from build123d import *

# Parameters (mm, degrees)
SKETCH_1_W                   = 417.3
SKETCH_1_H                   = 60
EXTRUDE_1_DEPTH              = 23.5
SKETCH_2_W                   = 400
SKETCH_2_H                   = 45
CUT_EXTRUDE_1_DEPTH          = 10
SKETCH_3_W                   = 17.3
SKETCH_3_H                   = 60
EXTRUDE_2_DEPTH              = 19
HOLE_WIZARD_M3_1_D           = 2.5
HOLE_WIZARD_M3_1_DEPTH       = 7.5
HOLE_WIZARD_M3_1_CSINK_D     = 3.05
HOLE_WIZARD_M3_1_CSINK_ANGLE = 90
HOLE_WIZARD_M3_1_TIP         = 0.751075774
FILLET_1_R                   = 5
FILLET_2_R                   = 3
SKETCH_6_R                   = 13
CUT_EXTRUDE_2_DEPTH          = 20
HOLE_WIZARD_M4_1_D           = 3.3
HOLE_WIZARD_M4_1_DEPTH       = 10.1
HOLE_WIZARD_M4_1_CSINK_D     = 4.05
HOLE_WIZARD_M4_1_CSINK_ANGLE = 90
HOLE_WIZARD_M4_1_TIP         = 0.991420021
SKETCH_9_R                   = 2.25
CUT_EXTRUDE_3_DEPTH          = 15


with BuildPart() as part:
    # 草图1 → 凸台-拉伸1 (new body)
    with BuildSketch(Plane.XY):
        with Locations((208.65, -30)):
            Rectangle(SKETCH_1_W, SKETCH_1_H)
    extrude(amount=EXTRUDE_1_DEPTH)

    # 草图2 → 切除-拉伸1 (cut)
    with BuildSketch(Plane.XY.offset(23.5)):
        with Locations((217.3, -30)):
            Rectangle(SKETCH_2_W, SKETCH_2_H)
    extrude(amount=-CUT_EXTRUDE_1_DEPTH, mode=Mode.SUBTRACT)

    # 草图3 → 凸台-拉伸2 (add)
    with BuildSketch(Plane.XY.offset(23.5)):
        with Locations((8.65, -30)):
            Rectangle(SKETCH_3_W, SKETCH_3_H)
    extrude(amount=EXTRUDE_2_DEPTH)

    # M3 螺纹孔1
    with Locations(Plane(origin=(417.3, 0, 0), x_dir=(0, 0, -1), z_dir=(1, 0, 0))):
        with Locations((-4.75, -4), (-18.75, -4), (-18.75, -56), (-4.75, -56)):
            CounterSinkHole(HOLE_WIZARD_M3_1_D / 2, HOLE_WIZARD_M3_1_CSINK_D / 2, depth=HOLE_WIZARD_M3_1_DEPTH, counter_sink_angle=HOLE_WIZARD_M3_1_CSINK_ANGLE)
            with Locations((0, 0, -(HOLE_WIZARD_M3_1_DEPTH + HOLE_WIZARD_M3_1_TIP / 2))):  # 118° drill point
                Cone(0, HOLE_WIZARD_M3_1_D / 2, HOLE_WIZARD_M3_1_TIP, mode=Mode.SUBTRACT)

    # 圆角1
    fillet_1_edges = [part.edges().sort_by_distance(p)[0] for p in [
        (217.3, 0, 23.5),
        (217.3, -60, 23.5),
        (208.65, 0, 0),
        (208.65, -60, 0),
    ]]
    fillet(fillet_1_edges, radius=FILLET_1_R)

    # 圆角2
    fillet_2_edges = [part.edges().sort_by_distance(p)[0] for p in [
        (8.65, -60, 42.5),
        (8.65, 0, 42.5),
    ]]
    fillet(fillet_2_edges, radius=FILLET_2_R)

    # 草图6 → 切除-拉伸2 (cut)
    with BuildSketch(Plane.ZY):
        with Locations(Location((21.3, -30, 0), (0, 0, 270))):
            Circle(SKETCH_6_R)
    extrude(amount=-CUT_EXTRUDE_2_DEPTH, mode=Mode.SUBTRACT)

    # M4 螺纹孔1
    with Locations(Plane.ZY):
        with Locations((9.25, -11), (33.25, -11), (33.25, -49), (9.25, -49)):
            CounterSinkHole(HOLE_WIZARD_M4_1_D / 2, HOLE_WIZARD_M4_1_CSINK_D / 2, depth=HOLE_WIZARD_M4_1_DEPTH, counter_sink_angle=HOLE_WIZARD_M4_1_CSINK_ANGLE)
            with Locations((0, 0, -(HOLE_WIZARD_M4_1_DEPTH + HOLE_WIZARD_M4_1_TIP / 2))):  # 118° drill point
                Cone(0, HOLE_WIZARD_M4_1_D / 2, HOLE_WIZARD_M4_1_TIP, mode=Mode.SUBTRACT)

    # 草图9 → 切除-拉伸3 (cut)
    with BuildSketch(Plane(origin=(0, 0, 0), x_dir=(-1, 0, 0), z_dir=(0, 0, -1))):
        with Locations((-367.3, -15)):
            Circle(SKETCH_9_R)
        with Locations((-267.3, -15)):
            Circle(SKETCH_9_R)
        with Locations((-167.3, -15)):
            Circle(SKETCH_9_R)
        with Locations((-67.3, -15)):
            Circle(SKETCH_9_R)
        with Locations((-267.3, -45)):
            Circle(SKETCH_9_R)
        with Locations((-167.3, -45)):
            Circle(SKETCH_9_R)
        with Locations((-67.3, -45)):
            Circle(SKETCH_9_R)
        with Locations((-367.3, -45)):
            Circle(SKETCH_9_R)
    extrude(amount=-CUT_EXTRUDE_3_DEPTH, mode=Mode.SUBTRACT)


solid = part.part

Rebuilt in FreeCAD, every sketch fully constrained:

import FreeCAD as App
import Part
import Sketcher


def edges_at(feature, points):
    """Names of the edges that pass closest to the given points."""
    edges = feature.Shape.Edges
    near = lambda p: min(range(len(edges)), key=lambda i: edges[i].distToShape(Part.Vertex(*p))[0])
    return sorted({f"Edge{near(p) + 1}" for p in points})


def add_polygon(sketch, points):
    """Adds a closed chain of lines whose ends are joined by coincident constraints."""
    first, n = sketch.GeometryCount, len(points)
    for a, b in zip(points, points[1:] + points[:1]):
        sketch.addGeometry(Part.LineSegment(App.Vector(*a, 0), App.Vector(*b, 0)), False)
    for i in range(n):
        sketch.addConstraint(Sketcher.Constraint("Coincident", first + i, 2, first + (i + 1) % n, 1))

doc = App.newDocument("Part")
body = doc.addObject("PartDesign::Body", "Body")

# Sketch on XY plane
sketch1 = doc.addObject("Sketcher::SketchObject", "Sketch")
body.addObject(sketch1)
sketch1.AttachmentSupport = (doc.XY_Plane, [""])
sketch1.MapMode = "FlatFace"
add_polygon(sketch1, [(0, 0), (0, -60), (417, -60), (417, 0)])  # lines 0-3
sketch1.addConstraint(Sketcher.Constraint("Vertical", 0))
sketch1.addConstraint(Sketcher.Constraint("Horizontal", 1))
sketch1.addConstraint(Sketcher.Constraint("Vertical", 2))
sketch1.addConstraint(Sketcher.Constraint("Horizontal", 3))
sketch1.addConstraint(Sketcher.Constraint("Coincident", 3, 2, -1, 1))
sketch1.addConstraint(Sketcher.Constraint("DistanceY", 0, 2, 0, 1, 60.0))
sketch1.addConstraint(Sketcher.Constraint("DistanceX", 1, 1, 1, 2, 417.3))
pad1 = doc.addObject("PartDesign::Pad", "Pad")
body.addObject(pad1)
pad1.Profile = sketch1
pad1.Length = 23.5

# Sketch on XY plane
sketch2 = doc.addObject("Sketcher::SketchObject", "Sketch001")
body.addObject(sketch2)
sketch2.AttachmentSupport = (doc.XY_Plane, [""])
sketch2.MapMode = "FlatFace"
sketch2.AttachmentOffset = App.Placement(App.Vector(0, 0, 23.5), App.Rotation())
add_polygon(sketch2, [(17, -8), (17, -52), (417, -52), (417, -8)])  # lines 0-3
sketch2.addConstraint(Sketcher.Constraint("Vertical", 0))
sketch2.addConstraint(Sketcher.Constraint("Horizontal", 1))
sketch2.addConstraint(Sketcher.Constraint("Vertical", 2))
sketch2.addConstraint(Sketcher.Constraint("Horizontal", 3))
sketch2.addConstraint(Sketcher.Constraint("DistanceX", 1, 1, 1, 2, 400.0))
sketch2.addConstraint(Sketcher.Constraint("DistanceY", 0, 2, 0, 1, 45.0))
sketch2.addConstraint(Sketcher.Constraint("DistanceX", -1, 1, 0, 2, 17.3))
sketch2.addConstraint(Sketcher.Constraint("DistanceY", 0, 2, -1, 1, 52.5))
pocket1 = doc.addObject("PartDesign::Pocket", "Pocket")
body.addObject(pocket1)
pocket1.Profile = sketch2
pocket1.Length = 10

# Sketch on XY plane
sketch3 = doc.addObject("Sketcher::SketchObject", "Sketch002")
body.addObject(sketch3)
sketch3.AttachmentSupport = (doc.XY_Plane, [""])
sketch3.MapMode = "FlatFace"
sketch3.AttachmentOffset = App.Placement(App.Vector(0, 0, 23.5), App.Rotation())
add_polygon(sketch3, [(0, 0), (0, -60), (17, -60), (17, 0)])  # lines 0-3
sketch3.addConstraint(Sketcher.Constraint("Vertical", 0))
sketch3.addConstraint(Sketcher.Constraint("Horizontal", 1))
sketch3.addConstraint(Sketcher.Constraint("Vertical", 2))
sketch3.addConstraint(Sketcher.Constraint("Horizontal", 3))
sketch3.addConstraint(Sketcher.Constraint("Coincident", 3, 2, -1, 1))
sketch3.addConstraint(Sketcher.Constraint("DistanceY", 0, 2, 0, 1, 60.0))
sketch3.addConstraint(Sketcher.Constraint("DistanceX", 1, 1, 1, 2, 17.3))
pad2 = doc.addObject("PartDesign::Pad", "Pad001")
body.addObject(pad2)
pad2.Profile = sketch3
pad2.Length = 19

# Sketch on YZ plane
sketch4 = doc.addObject("Sketcher::SketchObject", "Sketch003")
body.addObject(sketch4)
sketch4.AttachmentSupport = (doc.YZ_Plane, [""])
sketch4.MapMode = "FlatFace"
sketch4.AttachmentOffset = App.Placement(App.Vector(0, 0, 417.3), App.Rotation())
sketch4.addGeometry(Part.Circle(App.Vector(-4, 4.8, 0), App.Vector(0, 0, 1), 1.2), False)
sketch4.addGeometry(Part.Circle(App.Vector(-4, 18.8, 0), App.Vector(0, 0, 1), 1.2), False)
sketch4.addGeometry(Part.Circle(App.Vector(-56, 18.8, 0), App.Vector(0, 0, 1), 1.2), False)
sketch4.addGeometry(Part.Circle(App.Vector(-56, 4.8, 0), App.Vector(0, 0, 1), 1.2), False)
sketch4.addConstraint(Sketcher.Constraint("Equal", 0, 1))
sketch4.addConstraint(Sketcher.Constraint("Equal", 1, 2))
sketch4.addConstraint(Sketcher.Constraint("Equal", 2, 3))
sketch4.addConstraint(Sketcher.Constraint("Horizontal", 1, 3, 2, 3))
sketch4.addConstraint(Sketcher.Constraint("Horizontal", 0, 3, 3, 3))
sketch4.addConstraint(Sketcher.Constraint("Vertical", 0, 3, 1, 3))
sketch4.addConstraint(Sketcher.Constraint("Vertical", 2, 3, 3, 3))
sketch4.addConstraint(Sketcher.Constraint("Diameter", 0, 2.5))
sketch4.addConstraint(Sketcher.Constraint("DistanceX", 0, 3, -1, 1, 4.0))
sketch4.addConstraint(Sketcher.Constraint("DistanceX", 2, 3, -1, 1, 56.0))
sketch4.addConstraint(Sketcher.Constraint("DistanceY", 0, 3, 1, 3, 14.0))
sketch4.addConstraint(Sketcher.Constraint("DistanceY", -1, 1, 0, 3, 4.75))
doc.recompute()
hole = doc.addObject("PartDesign::Hole", "Hole")
body.addObject(hole)
hole.Profile = sketch4
hole.ThreadType = "None"
hole.Diameter = 2.5
hole.DepthType = "Dimension"
hole.Depth = 7.5
hole.DrillPoint = "Angled"
hole.DrillPointAngle = 118
hole.HoleCutType = "Countersink"
hole.HoleCutDiameter = 3.05
hole.HoleCutCountersinkAngle = 90
doc.recompute()

fillet = doc.addObject("PartDesign::Fillet", "Fillet")
body.addObject(fillet)
fillet.Base = (hole, edges_at(hole, [
    (217.3, 0, 23.5),
    (217.3, -60, 23.5),
    (208.65, 0, 0),
    (208.65, -60, 0),
]))
fillet.Radius = 5
doc.recompute()

fillet2 = doc.addObject("PartDesign::Fillet", "Fillet001")
body.addObject(fillet2)
fillet2.Base = (fillet, edges_at(fillet, [(8.65, -60, 42.5), (8.65, 0, 42.5)]))
fillet2.Radius = 3

# Sketch on YZ plane
sketch5 = doc.addObject("Sketcher::SketchObject", "Sketch004")
body.addObject(sketch5)
sketch5.AttachmentSupport = (doc.YZ_Plane, [""])
sketch5.MapMode = "FlatFace"
sketch5.addGeometry(Part.Circle(App.Vector(-30, 21, 0), App.Vector(0, 0, 1), 13), False)
sketch5.addConstraint(Sketcher.Constraint("Diameter", 0, 26.0))
sketch5.addConstraint(Sketcher.Constraint("DistanceX", 0, 3, -1, 1, 30.0))
sketch5.addConstraint(Sketcher.Constraint("DistanceY", -1, 1, 0, 3, 21.3))
pocket2 = doc.addObject("PartDesign::Pocket", "Pocket001")
body.addObject(pocket2)
pocket2.Profile = sketch5
pocket2.Length = 20
pocket2.Reversed = True

# Sketch on YZ plane
sketch6 = doc.addObject("Sketcher::SketchObject", "Sketch005")
body.addObject(sketch6)
sketch6.AttachmentSupport = (doc.YZ_Plane, [""])
sketch6.MapMode = "FlatFace"
sketch6.addGeometry(Part.Circle(App.Vector(-11, 9.2, 0), App.Vector(0, 0, 1), 1.6), False)
sketch6.addGeometry(Part.Circle(App.Vector(-11, 33.2, 0), App.Vector(0, 0, 1), 1.6), False)
sketch6.addGeometry(Part.Circle(App.Vector(-49, 33.2, 0), App.Vector(0, 0, 1), 1.6), False)
sketch6.addGeometry(Part.Circle(App.Vector(-49, 9.2, 0), App.Vector(0, 0, 1), 1.6), False)
sketch6.addConstraint(Sketcher.Constraint("Equal", 0, 1))
sketch6.addConstraint(Sketcher.Constraint("Equal", 1, 2))
sketch6.addConstraint(Sketcher.Constraint("Equal", 2, 3))
sketch6.addConstraint(Sketcher.Constraint("Horizontal", 1, 3, 2, 3))
sketch6.addConstraint(Sketcher.Constraint("Horizontal", 0, 3, 3, 3))
sketch6.addConstraint(Sketcher.Constraint("Vertical", 0, 3, 1, 3))
sketch6.addConstraint(Sketcher.Constraint("Vertical", 2, 3, 3, 3))
sketch6.addConstraint(Sketcher.Constraint("Diameter", 0, 3.3))
sketch6.addConstraint(Sketcher.Constraint("DistanceX", 0, 3, -1, 1, 11.0))
sketch6.addConstraint(Sketcher.Constraint("DistanceX", 2, 3, -1, 1, 49.0))
sketch6.addConstraint(Sketcher.Constraint("DistanceY", 0, 3, 1, 3, 24.0))
sketch6.addConstraint(Sketcher.Constraint("DistanceY", -1, 1, 0, 3, 9.25))
doc.recompute()
hole2 = doc.addObject("PartDesign::Hole", "Hole001")
body.addObject(hole2)
hole2.Profile = sketch6
hole2.ThreadType = "None"
hole2.Diameter = 3.3
hole2.DepthType = "Dimension"
hole2.Depth = 10.1
hole2.DrillPoint = "Angled"
hole2.DrillPointAngle = 118
hole2.HoleCutType = "Countersink"
hole2.HoleCutDiameter = 4.05
hole2.HoleCutCountersinkAngle = 90
hole2.Reversed = True

# Sketch on XY plane
sketch7 = doc.addObject("Sketcher::SketchObject", "Sketch006")
body.addObject(sketch7)
sketch7.AttachmentSupport = (doc.XY_Plane, [""])
sketch7.MapMode = "FlatFace"
sketch7.addGeometry(Part.Circle(App.Vector(367.3, -15, 0), App.Vector(0, 0, 1), 2.2), False)
sketch7.addGeometry(Part.Circle(App.Vector(267.3, -15, 0), App.Vector(0, 0, 1), 2.2), False)
sketch7.addGeometry(Part.Circle(App.Vector(167.3, -15, 0), App.Vector(0, 0, 1), 2.2), False)
sketch7.addGeometry(Part.Circle(App.Vector(67.3, -15, 0), App.Vector(0, 0, 1), 2.2), False)
sketch7.addGeometry(Part.Circle(App.Vector(267.3, -45, 0), App.Vector(0, 0, 1), 2.2), False)
sketch7.addGeometry(Part.Circle(App.Vector(167.3, -45, 0), App.Vector(0, 0, 1), 2.2), False)
sketch7.addGeometry(Part.Circle(App.Vector(67.3, -45, 0), App.Vector(0, 0, 1), 2.2), False)
sketch7.addGeometry(Part.Circle(App.Vector(367.3, -45, 0), App.Vector(0, 0, 1), 2.2), False)
sketch7.addConstraint(Sketcher.Constraint("Equal", 0, 1))
sketch7.addConstraint(Sketcher.Constraint("Equal", 1, 2))
sketch7.addConstraint(Sketcher.Constraint("Equal", 2, 3))
sketch7.addConstraint(Sketcher.Constraint("Equal", 3, 4))
sketch7.addConstraint(Sketcher.Constraint("Equal", 4, 5))
sketch7.addConstraint(Sketcher.Constraint("Equal", 5, 6))
sketch7.addConstraint(Sketcher.Constraint("Equal", 6, 7))
sketch7.addConstraint(Sketcher.Constraint("Horizontal", 0, 3, 1, 3))
sketch7.addConstraint(Sketcher.Constraint("Horizontal", 1, 3, 2, 3))
sketch7.addConstraint(Sketcher.Constraint("Horizontal", 2, 3, 3, 3))
sketch7.addConstraint(Sketcher.Constraint("Horizontal", 4, 3, 5, 3))
sketch7.addConstraint(Sketcher.Constraint("Horizontal", 5, 3, 6, 3))
sketch7.addConstraint(Sketcher.Constraint("Horizontal", 6, 3, 7, 3))
sketch7.addConstraint(Sketcher.Constraint("Vertical", 1, 3, 4, 3))
sketch7.addConstraint(Sketcher.Constraint("Vertical", 2, 3, 5, 3))
sketch7.addConstraint(Sketcher.Constraint("Vertical", 3, 3, 6, 3))
sketch7.addConstraint(Sketcher.Constraint("Vertical", 0, 3, 7, 3))
sketch7.addConstraint(Sketcher.Constraint("Diameter", 0, 4.5))
sketch7.addConstraint(Sketcher.Constraint("DistanceY", 0, 3, -1, 1, 15.0))
sketch7.addConstraint(Sketcher.Constraint("DistanceY", 4, 3, -1, 1, 45.0))
sketch7.addConstraint(Sketcher.Constraint("DistanceX", 1, 3, 0, 3, 100.0))
sketch7.addConstraint(Sketcher.Constraint("DistanceX", 2, 3, 1, 3, 100.0))
sketch7.addConstraint(Sketcher.Constraint("DistanceX", 3, 3, 2, 3, 100.0))
sketch7.addConstraint(Sketcher.Constraint("DistanceX", -1, 1, 0, 3, 367.3))
pocket3 = doc.addObject("PartDesign::Pocket", "Pocket002")
body.addObject(pocket3)
pocket3.Profile = sketch7
pocket3.Length = 15
pocket3.Reversed = True

doc.recompute()
